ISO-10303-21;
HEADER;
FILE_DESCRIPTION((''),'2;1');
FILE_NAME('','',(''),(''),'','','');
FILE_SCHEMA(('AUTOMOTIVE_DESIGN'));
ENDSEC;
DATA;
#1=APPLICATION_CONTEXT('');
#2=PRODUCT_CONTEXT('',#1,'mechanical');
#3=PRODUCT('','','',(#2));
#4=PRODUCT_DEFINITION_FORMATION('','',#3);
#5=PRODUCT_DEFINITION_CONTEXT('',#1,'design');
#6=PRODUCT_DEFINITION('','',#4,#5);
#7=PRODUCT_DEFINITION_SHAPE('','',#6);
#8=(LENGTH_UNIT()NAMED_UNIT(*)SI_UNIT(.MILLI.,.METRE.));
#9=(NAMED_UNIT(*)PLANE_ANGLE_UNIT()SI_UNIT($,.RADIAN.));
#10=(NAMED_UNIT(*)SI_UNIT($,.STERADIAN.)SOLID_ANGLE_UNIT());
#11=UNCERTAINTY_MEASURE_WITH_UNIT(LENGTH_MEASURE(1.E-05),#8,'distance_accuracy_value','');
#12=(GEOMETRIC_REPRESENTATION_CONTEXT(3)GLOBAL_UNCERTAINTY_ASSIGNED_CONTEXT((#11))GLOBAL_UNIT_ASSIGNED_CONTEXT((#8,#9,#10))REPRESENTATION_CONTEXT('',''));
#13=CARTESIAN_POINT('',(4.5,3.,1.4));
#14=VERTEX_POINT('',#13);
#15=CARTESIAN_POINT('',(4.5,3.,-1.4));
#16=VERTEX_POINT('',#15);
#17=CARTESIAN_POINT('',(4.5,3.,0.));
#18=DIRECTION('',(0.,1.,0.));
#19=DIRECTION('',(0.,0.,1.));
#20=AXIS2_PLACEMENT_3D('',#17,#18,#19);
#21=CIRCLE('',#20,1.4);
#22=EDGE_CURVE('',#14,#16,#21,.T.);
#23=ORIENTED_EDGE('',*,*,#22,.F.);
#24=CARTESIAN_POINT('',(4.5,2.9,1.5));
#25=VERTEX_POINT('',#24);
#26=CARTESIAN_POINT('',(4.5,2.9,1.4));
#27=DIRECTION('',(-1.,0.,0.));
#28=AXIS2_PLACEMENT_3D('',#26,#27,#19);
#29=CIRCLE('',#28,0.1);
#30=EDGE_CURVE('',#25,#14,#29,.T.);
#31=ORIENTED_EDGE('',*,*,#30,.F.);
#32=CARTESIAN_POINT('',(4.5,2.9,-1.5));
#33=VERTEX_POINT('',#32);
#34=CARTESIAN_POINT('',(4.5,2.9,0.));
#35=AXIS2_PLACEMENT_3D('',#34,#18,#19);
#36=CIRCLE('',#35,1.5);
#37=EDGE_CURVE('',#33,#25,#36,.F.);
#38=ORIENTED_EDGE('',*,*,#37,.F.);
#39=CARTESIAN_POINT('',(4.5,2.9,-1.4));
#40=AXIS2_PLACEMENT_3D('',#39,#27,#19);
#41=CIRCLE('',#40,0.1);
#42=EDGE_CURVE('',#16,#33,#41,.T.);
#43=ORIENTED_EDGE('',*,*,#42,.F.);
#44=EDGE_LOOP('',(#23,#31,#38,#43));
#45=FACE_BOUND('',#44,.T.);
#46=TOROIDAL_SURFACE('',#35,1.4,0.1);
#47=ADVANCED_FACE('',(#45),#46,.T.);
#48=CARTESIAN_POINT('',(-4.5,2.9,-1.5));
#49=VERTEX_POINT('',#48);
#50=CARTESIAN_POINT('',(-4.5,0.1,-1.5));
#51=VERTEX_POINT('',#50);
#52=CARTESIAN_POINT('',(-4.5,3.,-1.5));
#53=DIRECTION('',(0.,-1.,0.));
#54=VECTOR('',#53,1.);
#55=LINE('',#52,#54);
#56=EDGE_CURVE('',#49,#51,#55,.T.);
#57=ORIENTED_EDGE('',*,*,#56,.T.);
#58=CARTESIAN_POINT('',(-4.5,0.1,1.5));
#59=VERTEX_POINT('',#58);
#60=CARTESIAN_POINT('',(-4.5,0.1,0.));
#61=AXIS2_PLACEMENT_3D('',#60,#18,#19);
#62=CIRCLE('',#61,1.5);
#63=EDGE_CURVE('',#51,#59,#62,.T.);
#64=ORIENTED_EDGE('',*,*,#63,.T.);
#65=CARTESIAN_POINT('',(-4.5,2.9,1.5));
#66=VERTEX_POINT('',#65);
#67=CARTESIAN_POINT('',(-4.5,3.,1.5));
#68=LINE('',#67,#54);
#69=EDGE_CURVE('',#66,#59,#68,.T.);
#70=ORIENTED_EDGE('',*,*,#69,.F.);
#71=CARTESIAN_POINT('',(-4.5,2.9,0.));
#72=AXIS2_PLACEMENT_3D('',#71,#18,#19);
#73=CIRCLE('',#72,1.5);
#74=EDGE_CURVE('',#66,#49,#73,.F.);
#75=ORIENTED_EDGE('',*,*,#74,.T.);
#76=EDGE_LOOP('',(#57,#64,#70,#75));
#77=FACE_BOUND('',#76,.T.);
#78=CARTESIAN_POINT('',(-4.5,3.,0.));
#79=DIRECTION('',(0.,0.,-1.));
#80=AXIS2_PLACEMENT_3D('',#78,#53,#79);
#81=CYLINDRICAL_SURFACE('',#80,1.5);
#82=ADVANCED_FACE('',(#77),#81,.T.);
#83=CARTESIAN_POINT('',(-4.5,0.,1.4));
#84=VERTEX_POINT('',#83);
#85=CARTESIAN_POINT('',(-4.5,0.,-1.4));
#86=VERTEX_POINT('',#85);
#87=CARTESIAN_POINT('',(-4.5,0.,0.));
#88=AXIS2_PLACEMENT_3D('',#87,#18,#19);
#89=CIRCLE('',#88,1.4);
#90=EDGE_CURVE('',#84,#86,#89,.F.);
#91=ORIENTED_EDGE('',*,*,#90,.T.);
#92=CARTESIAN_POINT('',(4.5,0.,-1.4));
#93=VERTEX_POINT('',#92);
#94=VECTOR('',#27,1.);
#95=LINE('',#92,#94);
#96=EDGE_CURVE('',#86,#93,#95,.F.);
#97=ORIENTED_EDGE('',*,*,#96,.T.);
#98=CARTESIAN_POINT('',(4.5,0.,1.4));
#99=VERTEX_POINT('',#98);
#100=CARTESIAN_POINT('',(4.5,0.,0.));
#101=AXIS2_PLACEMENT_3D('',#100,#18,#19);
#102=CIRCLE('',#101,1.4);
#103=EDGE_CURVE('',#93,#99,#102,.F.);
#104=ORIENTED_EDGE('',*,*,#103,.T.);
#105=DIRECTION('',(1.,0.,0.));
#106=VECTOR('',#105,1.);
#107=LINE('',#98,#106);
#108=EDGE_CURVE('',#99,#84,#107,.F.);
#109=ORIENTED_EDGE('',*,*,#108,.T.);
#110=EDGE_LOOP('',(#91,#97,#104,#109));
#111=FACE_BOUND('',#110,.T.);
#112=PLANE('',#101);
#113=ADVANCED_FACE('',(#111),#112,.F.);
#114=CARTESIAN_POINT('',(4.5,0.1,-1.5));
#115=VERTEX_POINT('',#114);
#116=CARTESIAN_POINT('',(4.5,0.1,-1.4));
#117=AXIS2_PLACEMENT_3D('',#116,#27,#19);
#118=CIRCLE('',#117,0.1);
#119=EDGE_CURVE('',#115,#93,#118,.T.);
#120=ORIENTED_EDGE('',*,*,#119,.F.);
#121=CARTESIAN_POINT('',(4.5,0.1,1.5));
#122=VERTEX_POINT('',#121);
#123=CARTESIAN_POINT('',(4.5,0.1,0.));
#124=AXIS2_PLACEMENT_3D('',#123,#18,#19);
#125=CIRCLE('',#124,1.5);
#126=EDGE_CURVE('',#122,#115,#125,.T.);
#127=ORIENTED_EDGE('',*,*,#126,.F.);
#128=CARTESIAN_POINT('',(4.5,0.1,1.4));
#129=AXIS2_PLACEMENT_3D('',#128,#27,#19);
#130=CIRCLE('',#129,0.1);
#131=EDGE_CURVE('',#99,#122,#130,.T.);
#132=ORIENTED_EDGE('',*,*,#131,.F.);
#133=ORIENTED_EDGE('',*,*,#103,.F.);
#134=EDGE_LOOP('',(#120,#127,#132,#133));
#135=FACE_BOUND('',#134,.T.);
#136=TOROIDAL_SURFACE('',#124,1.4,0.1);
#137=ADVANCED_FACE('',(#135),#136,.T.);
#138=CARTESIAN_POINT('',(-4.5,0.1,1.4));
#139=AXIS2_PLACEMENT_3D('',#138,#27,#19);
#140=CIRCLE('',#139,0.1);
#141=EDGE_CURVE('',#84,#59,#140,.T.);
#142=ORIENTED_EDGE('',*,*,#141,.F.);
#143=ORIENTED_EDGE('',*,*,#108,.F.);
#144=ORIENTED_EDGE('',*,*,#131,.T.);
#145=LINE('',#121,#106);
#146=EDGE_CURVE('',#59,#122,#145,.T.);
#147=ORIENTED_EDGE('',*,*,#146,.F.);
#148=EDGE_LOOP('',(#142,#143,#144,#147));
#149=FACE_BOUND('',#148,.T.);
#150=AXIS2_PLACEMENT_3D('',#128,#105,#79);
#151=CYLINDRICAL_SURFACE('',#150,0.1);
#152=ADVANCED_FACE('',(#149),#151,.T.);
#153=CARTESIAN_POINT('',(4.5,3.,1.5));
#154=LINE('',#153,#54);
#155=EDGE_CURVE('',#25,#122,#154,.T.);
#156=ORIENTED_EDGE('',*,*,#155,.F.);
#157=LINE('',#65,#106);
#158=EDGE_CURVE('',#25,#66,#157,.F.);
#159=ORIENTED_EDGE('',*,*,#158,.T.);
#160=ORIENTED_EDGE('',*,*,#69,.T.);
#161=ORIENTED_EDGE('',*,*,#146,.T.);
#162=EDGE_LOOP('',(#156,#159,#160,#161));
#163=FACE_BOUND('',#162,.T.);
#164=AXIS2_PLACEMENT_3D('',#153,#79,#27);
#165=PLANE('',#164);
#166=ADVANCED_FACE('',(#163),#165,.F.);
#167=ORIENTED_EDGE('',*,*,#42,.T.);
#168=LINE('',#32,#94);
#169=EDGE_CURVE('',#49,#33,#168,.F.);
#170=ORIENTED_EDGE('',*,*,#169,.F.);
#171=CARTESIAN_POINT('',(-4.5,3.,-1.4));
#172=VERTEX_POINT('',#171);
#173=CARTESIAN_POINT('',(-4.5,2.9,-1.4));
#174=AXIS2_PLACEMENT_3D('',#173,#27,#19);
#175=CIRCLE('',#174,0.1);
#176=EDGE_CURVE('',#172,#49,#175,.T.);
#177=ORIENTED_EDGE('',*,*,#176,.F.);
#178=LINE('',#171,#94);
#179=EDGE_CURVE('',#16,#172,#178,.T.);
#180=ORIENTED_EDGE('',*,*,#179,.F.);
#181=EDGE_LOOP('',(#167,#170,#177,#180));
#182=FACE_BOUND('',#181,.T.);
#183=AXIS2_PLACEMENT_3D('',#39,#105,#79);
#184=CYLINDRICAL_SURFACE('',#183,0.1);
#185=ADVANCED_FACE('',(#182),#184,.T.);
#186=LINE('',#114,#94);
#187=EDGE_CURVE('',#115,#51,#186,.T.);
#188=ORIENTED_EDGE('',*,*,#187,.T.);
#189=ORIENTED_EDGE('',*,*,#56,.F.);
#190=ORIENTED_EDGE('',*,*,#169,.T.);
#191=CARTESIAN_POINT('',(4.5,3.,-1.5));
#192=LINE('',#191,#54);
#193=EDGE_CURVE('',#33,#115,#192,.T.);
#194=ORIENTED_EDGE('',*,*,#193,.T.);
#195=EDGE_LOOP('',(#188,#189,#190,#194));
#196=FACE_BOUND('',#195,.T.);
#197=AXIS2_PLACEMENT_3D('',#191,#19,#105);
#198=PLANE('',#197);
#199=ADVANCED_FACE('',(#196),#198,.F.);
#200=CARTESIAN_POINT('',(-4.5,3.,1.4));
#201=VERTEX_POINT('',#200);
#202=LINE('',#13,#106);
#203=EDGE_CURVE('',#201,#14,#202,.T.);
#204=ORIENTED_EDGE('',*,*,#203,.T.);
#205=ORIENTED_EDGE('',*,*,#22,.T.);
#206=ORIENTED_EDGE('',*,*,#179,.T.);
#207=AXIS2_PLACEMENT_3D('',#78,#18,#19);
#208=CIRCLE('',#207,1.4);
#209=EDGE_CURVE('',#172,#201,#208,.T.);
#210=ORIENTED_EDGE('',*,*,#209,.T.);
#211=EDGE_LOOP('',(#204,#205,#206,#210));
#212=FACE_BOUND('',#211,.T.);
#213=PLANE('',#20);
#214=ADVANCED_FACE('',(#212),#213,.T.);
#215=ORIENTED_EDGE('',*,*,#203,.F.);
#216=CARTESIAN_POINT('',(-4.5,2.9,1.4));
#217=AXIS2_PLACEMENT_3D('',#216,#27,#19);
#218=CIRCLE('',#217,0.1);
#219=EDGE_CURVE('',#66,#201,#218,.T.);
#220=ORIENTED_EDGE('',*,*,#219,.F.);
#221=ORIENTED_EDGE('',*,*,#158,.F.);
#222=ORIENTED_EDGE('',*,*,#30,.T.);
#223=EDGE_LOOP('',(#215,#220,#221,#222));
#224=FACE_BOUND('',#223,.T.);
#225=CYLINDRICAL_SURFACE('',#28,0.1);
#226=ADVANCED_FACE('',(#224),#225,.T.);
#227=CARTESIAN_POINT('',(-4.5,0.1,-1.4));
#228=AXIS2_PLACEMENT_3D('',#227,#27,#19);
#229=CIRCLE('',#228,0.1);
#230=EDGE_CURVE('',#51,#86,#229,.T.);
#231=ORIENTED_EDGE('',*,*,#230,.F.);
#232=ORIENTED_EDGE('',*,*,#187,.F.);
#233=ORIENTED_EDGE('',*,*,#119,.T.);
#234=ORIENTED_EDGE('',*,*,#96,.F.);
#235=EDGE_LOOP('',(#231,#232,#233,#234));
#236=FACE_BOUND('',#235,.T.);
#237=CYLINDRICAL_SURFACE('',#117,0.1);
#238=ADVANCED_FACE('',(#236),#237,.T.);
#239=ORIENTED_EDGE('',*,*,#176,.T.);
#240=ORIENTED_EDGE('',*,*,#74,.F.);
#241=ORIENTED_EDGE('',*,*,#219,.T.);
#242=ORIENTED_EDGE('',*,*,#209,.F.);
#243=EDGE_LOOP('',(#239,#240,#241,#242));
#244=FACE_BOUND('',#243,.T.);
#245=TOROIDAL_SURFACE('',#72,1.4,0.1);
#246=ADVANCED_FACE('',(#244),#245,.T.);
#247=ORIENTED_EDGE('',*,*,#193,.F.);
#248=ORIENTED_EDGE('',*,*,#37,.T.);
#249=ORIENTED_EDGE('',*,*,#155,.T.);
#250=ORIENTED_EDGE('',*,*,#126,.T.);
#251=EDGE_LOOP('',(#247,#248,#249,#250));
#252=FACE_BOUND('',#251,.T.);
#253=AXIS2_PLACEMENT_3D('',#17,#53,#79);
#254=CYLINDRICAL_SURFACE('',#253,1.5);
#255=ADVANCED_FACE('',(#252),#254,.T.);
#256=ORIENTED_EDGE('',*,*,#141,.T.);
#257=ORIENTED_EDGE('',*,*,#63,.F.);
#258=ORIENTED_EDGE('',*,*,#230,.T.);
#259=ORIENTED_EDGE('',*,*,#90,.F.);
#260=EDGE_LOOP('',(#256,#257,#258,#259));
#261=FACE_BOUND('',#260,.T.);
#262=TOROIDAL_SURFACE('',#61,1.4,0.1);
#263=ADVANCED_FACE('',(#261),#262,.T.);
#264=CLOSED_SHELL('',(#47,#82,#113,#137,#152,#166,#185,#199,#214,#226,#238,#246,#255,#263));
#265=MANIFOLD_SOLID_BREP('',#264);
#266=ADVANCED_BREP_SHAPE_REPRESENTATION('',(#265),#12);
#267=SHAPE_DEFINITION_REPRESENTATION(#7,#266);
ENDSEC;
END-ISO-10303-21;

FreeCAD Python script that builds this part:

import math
import FreeCAD as App
import Part
import Sketcher
Q = App.Units.Quantity


def edges_at(feature, points):
    """Names of the edges that pass closest to the given points."""
    edges = feature.Shape.Edges
    near = lambda p: min(range(len(edges)), key=lambda i: edges[i].distToShape(Part.Vertex(*p))[0])
    return sorted({f"Edge{near(p) + 1}" for p in points})

doc = App.newDocument("Part")
body = doc.addObject("PartDesign::Body", "Body")

sketch1 = doc.addObject("Sketcher::SketchObject", "Sketch")
body.addObject(sketch1)
sketch1.AttachmentSupport = (doc.XZ_Plane, [""])
sketch1.MapMode = "FlatFace"
sketch1.addGeometry([
    Part.LineSegment(App.Vector(-4.5, 1.5, 0), App.Vector(4.5, 1.5, 0)),
    Part.ArcOfCircle(Part.Circle(App.Vector(4.5, 0, 0), App.Vector(0, 0, 1), 1.5), math.radians(-90), math.radians(90)),
    Part.LineSegment(App.Vector(4.5, -1.5, 0), App.Vector(-4.5, -1.5, 0)),
    Part.ArcOfCircle(Part.Circle(App.Vector(-4.5, 0, 0), App.Vector(0, 0, 1), 1.5), math.radians(90), math.radians(270)),
], False)
sketch1.addConstraint([
    Sketcher.Constraint("Tangent", 0, 2, 1, 2),
    Sketcher.Constraint("Tangent", 1, 1, 2, 1),
    Sketcher.Constraint("Tangent", 2, 2, 3, 2),
    Sketcher.Constraint("Tangent", 3, 1, 0, 1),
    Sketcher.Constraint("Horizontal", 0),
    Sketcher.Constraint("Horizontal", 2),
    Sketcher.Constraint("Symmetric", 1, 3, 3, 3, -1, 1),
    Sketcher.Constraint("Radius", 1, Q("1.5 mm")),
    Sketcher.Constraint("DistanceX", 0, 1, 0, 2, Q("9 mm")),
])
pad1 = doc.addObject("PartDesign::Pad", "Pad")
body.addObject(pad1)
pad1.Profile = sketch1
pad1.Length = 3
pad1.Reversed = True
doc.recompute()

fillet = doc.addObject("PartDesign::Fillet", "Fillet")
body.addObject(fillet)
fillet.Base = (pad1, edges_at(pad1, [
    (-6, 3, 0),
    (0, 3, 1.5),
    (6, 3, 0),
    (0, 0, 1.5),
    (-6, 0, 0),
    (0, 0, -1.5),
    (6, 0, 0),
    (0, 3, -1.5),
]))
fillet.Radius = 0.1

doc.recompute()
